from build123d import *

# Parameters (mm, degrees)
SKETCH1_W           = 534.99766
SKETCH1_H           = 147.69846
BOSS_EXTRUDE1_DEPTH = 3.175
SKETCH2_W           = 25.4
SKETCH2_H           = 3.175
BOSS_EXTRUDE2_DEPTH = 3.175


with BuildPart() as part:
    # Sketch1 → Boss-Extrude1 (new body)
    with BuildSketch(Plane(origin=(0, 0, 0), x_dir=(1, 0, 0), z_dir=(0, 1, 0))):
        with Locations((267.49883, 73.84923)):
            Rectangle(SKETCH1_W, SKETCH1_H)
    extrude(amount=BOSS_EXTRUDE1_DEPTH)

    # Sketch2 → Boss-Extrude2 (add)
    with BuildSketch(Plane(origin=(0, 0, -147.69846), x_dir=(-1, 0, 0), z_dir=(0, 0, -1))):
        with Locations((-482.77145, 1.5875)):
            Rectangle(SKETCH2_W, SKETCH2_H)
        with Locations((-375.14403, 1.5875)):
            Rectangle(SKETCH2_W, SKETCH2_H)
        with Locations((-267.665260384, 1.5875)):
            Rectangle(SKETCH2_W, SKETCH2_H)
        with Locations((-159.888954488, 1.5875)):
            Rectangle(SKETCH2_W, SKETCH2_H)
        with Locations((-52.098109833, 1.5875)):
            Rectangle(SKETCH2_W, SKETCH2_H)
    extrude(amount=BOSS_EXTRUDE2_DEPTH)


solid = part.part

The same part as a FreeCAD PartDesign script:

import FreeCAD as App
import Part
import Sketcher

V = App.Vector
Q = App.Units.Quantity

doc = App.newDocument("Part")
body = doc.addObject("PartDesign::Body", "Body")

# Sketch on XZ plane
sketch1 = doc.addObject("Sketcher::SketchObject", "Sketch")
body.addObject(sketch1)
sketch1.AttachmentSupport = (doc.XZ_Plane, [""])
sketch1.MapMode = "FlatFace"
sketch1.addGeometry([
    Part.LineSegment(V(0, -148, 0), V(0, 0, 0)),
    Part.LineSegment(V(0, 0, 0), V(535, 0, 0)),
    Part.LineSegment(V(535, 0, 0), V(535, -148, 0)),
    Part.LineSegment(V(535, -148, 0), V(0, -148, 0)),
], False)
sketch1.addConstraint([
    Sketcher.Constraint("Coincident", 0, 2, 1, 1),
    Sketcher.Constraint("Coincident", 1, 2, 2, 1),
    Sketcher.Constraint("Coincident", 2, 2, 3, 1),
    Sketcher.Constraint("Coincident", 3, 2, 0, 1),
    Sketcher.Constraint("Vertical", 0),
    Sketcher.Constraint("Horizontal", 1),
    Sketcher.Constraint("Vertical", 2),
    Sketcher.Constraint("Horizontal", 3),
    Sketcher.Constraint("Coincident", 0, 2, -1, 1),
    Sketcher.Constraint("DistanceX", 1, 1, 1, 2, Q("21.0629 in")),
    Sketcher.Constraint("DistanceY", 0, 1, 0, 2, Q("5.8149 in")),
])
pad1 = doc.addObject("PartDesign::Pad", "Pad")
body.addObject(pad1)
pad1.Profile = sketch1
pad1.Length = Q("0.125 in")
pad1.Reversed = True

# Sketch on XY plane
sketch2 = doc.addObject("Sketcher::SketchObject", "Sketch001")
body.addObject(sketch2)
sketch2.AttachmentSupport = (doc.XY_Plane, [""])
sketch2.MapMode = "FlatFace"
sketch2.AttachmentOffset = App.Placement(V(0, 0, -5.8149 * 25.4), App.Rotation())
sketch2.addGeometry([
    Part.LineSegment(V(495.5, 3.2, 0), V(495.5, 0, 0)),  # 0
    Part.LineSegment(V(495.5, 0, 0), V(470.1, 0, 0)),  # 1
    Part.LineSegment(V(470.1, 0, 0), V(470.1, 3.2, 0)),  # 2
    Part.LineSegment(V(470.1, 3.2, 0), V(495.5, 3.2, 0)),  # 3
    Part.LineSegment(V(387.8, 3.2, 0), V(387.8, 0, 0)),  # 4
    Part.LineSegment(V(387.8, 0, 0), V(362.4, 0, 0)),  # 5
    Part.LineSegment(V(362.4, 0, 0), V(362.4, 3.2, 0)),  # 6
    Part.LineSegment(V(362.4, 3.2, 0), V(387.8, 3.2, 0)),  # 7
    Part.LineSegment(V(280.4, 3.2, 0), V(280.4, 0, 0)),  # 8
    Part.LineSegment(V(280.4, 0, 0), V(255, 0, 0)),  # 9
    Part.LineSegment(V(255, 0, 0), V(255, 3.2, 0)),  # 10
    Part.LineSegment(V(255, 3.2, 0), V(280.4, 3.2, 0)),  # 11
    Part.LineSegment(V(172.6, 3.2, 0), V(172.6, 0, 0)),  # 12
    Part.LineSegment(V(172.6, 0, 0), V(147.2, 0, 0)),  # 13
    Part.LineSegment(V(147.2, 0, 0), V(147.2, 3.2, 0)),  # 14
    Part.LineSegment(V(147.2, 3.2, 0), V(172.6, 3.2, 0)),  # 15
    Part.LineSegment(V(64.8, 3.2, 0), V(64.8, 0, 0)),  # 16
    Part.LineSegment(V(64.8, 0, 0), V(39.4, 0, 0)),  # 17
    Part.LineSegment(V(39.4, 0, 0), V(39.4, 3.2, 0)),  # 18
    Part.LineSegment(V(39.4, 3.2, 0), V(64.8, 3.2, 0)),  # 19
], False)
sketch2.addConstraint([
    Sketcher.Constraint("Coincident", 0, 2, 1, 1),
    Sketcher.Constraint("Coincident", 1, 2, 2, 1),
    Sketcher.Constraint("Coincident", 2, 2, 3, 1),
    Sketcher.Constraint("Coincident", 3, 2, 0, 1),
    Sketcher.Constraint("Coincident", 4, 2, 5, 1),
    Sketcher.Constraint("Coincident", 5, 2, 6, 1),
    Sketcher.Constraint("Coincident", 6, 2, 7, 1),
    Sketcher.Constraint("Coincident", 7, 2, 4, 1),
    Sketcher.Constraint("Coincident", 8, 2, 9, 1),
    Sketcher.Constraint("Coincident", 9, 2, 10, 1),
    Sketcher.Constraint("Coincident", 10, 2, 11, 1),
    Sketcher.Constraint("Coincident", 11, 2, 8, 1),
    Sketcher.Constraint("Coincident", 12, 2, 13, 1),
    Sketcher.Constraint("Coincident", 13, 2, 14, 1),
    Sketcher.Constraint("Coincident", 14, 2, 15, 1),
    Sketcher.Constraint("Coincident", 15, 2, 12, 1),
    Sketcher.Constraint("Coincident", 16, 2, 17, 1),
    Sketcher.Constraint("Coincident", 17, 2, 18, 1),
    Sketcher.Constraint("Coincident", 18, 2, 19, 1),
    Sketcher.Constraint("Coincident", 19, 2, 16, 1),
    Sketcher.Constraint("Vertical", 0),
    Sketcher.Constraint("Horizontal", 1),
    Sketcher.Constraint("Vertical", 2),
    Sketcher.Constraint("Horizontal", 3),
    Sketcher.Constraint("Vertical", 4),
    Sketcher.Constraint("Horizontal", 5),
    Sketcher.Constraint("Vertical", 6),
    Sketcher.Constraint("Horizontal", 7),
    Sketcher.Constraint("Vertical", 8),
    Sketcher.Constraint("Horizontal", 9),
    Sketcher.Constraint("Vertical", 10),
    Sketcher.Constraint("Horizontal", 11),
    Sketcher.Constraint("Vertical", 12),
    Sketcher.Constraint("Horizontal", 13),
    Sketcher.Constraint("Vertical", 14),
    Sketcher.Constraint("Horizontal", 15),
    Sketcher.Constraint("Vertical", 16),
    Sketcher.Constraint("Horizontal", 17),
    Sketcher.Constraint("Vertical", 18),
    Sketcher.Constraint("Horizontal", 19),
    Sketcher.Constraint("PointOnObject", 0, 2, -1),
    Sketcher.Constraint("PointOnObject", 4, 2, -1),
    Sketcher.Constraint("PointOnObject", 8, 2, -1),
    Sketcher.Constraint("PointOnObject", 12, 2, -1),
    Sketcher.Constraint("PointOnObject", 16, 2, -1),
    Sketcher.Constraint("Horizontal", 3, 2, 6, 2),
    Sketcher.Constraint("Horizontal", 7, 2, 10, 2),
    Sketcher.Constraint("Horizontal", 11, 2, 14, 2),
    Sketcher.Constraint("Horizontal", 15, 2, 18, 2),
    Sketcher.Constraint("Equal", 3, 5),
    Sketcher.Constraint("Equal", 7, 9),
    Sketcher.Constraint("Equal", 11, 13),
    Sketcher.Constraint("Equal", 15, 17),
    Sketcher.Constraint("DistanceX", 1, 2, 1, 1, Q("1 in")),
    Sketcher.Constraint("DistanceY", 0, 2, 0, 1, Q("0.125 in")),
    Sketcher.Constraint("DistanceX", 4, 2, 1, 2, Q("3.2373 in")),
    Sketcher.Constraint("DistanceX", -1, 1, 0, 2, Q("495.47145 mm")),
    Sketcher.Constraint("DistanceX", -1, 1, 8, 2, Q("280.36526 mm")),
    Sketcher.Constraint("DistanceX", -1, 1, 16, 2, Q("64.79811 mm")),
    Sketcher.Constraint("DistanceX", -1, 1, 12, 2, Q("172.588954 mm")),
])
pad2 = doc.addObject("PartDesign::Pad", "Pad001")
body.addObject(pad2)
pad2.Profile = sketch2
pad2.Length = Q("0.125 in")
pad2.Reversed = True

doc.recompute()
